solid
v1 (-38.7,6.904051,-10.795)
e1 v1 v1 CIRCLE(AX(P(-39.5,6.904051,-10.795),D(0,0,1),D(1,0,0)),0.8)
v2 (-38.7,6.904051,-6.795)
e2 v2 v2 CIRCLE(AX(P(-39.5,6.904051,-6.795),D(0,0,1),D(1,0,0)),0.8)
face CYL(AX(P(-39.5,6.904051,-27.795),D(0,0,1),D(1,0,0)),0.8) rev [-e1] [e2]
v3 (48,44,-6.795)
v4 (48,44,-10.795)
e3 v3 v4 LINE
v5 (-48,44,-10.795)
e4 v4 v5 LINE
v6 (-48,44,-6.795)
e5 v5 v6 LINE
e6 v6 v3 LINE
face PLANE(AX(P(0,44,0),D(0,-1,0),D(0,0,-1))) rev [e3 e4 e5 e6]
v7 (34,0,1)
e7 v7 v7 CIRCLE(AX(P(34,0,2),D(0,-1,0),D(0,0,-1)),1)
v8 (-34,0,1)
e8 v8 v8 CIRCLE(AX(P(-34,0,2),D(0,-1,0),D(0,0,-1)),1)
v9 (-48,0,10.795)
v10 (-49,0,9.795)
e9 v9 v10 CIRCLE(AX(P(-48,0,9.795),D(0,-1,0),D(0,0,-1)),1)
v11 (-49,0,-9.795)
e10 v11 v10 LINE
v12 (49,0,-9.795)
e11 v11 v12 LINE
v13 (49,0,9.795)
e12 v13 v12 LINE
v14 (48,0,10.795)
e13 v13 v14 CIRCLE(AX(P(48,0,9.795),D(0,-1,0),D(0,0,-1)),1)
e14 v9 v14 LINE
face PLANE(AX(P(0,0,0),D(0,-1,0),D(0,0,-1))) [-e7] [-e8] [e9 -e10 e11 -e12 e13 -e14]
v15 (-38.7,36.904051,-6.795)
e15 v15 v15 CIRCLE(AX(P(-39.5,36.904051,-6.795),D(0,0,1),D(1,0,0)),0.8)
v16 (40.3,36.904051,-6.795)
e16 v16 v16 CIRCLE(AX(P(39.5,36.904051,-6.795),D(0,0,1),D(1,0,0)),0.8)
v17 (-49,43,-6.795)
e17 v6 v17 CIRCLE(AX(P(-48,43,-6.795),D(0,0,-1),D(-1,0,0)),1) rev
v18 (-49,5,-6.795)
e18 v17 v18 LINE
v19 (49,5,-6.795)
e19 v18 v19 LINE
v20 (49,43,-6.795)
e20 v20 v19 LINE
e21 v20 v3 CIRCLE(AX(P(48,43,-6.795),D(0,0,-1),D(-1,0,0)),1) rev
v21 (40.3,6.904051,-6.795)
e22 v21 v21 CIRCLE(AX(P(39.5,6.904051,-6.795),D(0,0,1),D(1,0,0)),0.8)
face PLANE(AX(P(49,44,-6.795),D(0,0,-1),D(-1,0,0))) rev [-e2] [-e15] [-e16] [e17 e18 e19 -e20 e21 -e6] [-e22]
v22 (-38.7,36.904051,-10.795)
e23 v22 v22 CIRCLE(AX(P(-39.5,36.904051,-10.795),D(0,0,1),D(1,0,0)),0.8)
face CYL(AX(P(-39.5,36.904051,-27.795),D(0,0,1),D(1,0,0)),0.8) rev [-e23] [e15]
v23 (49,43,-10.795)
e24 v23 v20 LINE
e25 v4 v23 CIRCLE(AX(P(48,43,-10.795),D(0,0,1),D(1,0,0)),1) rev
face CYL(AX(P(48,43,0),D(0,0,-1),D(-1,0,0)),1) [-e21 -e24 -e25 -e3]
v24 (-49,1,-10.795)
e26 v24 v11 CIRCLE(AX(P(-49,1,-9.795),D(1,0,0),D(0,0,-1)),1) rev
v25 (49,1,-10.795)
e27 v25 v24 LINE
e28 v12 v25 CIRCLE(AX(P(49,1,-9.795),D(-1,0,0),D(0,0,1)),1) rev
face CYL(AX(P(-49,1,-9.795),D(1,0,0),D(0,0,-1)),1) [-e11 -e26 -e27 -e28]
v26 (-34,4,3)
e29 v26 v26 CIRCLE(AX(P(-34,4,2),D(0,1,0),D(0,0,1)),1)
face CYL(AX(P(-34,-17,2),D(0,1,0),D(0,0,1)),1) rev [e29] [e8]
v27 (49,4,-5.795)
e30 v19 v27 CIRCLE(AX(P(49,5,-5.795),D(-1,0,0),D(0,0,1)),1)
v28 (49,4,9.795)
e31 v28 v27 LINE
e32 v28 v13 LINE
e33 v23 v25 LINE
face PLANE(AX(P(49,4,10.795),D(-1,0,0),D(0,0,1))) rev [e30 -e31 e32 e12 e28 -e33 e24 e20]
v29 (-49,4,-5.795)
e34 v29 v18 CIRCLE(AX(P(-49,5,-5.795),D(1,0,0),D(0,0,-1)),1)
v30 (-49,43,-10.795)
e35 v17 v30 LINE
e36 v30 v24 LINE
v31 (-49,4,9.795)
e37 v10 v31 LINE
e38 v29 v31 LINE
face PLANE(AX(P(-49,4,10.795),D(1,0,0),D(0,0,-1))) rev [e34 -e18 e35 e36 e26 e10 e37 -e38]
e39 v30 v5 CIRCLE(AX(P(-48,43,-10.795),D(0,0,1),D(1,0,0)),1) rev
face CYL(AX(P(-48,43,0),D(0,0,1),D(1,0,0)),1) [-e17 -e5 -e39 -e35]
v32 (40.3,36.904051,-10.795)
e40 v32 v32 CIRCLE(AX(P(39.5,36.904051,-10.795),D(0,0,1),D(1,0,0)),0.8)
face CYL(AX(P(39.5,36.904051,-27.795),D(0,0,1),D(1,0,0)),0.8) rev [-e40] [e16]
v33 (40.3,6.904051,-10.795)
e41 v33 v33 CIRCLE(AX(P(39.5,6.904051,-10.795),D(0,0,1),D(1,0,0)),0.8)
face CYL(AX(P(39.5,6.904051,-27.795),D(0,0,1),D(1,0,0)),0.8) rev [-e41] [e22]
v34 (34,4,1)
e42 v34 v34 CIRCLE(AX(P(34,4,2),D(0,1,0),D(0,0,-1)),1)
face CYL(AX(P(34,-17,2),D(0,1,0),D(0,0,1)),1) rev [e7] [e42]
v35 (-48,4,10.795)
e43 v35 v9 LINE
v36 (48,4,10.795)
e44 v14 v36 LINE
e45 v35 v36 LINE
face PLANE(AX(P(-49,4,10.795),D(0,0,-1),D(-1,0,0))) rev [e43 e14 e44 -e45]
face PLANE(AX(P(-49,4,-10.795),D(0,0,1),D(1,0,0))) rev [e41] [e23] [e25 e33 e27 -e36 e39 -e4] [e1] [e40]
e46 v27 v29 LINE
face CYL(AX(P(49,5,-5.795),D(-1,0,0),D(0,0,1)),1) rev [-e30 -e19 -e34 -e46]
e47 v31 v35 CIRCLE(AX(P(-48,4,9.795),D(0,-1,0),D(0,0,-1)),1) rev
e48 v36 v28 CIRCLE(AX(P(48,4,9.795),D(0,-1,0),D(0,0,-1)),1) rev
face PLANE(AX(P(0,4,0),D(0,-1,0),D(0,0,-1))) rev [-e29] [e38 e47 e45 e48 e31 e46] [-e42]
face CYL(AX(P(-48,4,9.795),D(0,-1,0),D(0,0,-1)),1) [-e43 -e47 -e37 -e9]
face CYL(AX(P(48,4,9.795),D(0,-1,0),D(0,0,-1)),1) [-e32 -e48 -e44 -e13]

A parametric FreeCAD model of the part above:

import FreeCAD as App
import Part
import Sketcher
from FreeCAD import Vector
Q = App.Units.Quantity


def edges_at(feature, points):
    """Names of the edges that pass closest to the given points."""
    edges = feature.Shape.Edges
    near = lambda p: min(range(len(edges)), key=lambda i: edges[i].distToShape(Part.Vertex(*p))[0])
    return sorted({f"Edge{near(p) + 1}" for p in points})

doc = App.newDocument("Part")
body = doc.addObject("PartDesign::Body", "Body")

# Sketch on XZ plane
sketch1 = body.newObject("Sketcher::SketchObject", "Sketch")
sketch1.AttachmentSupport = (doc.getObject("XZ_Plane"), [""])
sketch1.MapMode = "FlatFace"
sketch1.addGeometry(Part.LineSegment(Vector(-49, -11, 0), Vector(-49, 11, 0)), False)
sketch1.addGeometry(Part.LineSegment(Vector(-49, 11, 0), Vector(49, 11, 0)), False)
sketch1.addGeometry(Part.LineSegment(Vector(49, 11, 0), Vector(49, -11, 0)), False)
sketch1.addGeometry(Part.LineSegment(Vector(49, -11, 0), Vector(-49, -11, 0)), False)
sketch1.addConstraint(Sketcher.Constraint("Coincident", 0, 2, 1, 1))
sketch1.addConstraint(Sketcher.Constraint("Coincident", 1, 2, 2, 1))
sketch1.addConstraint(Sketcher.Constraint("Coincident", 2, 2, 3, 1))
sketch1.addConstraint(Sketcher.Constraint("Coincident", 3, 2, 0, 1))
sketch1.addConstraint(Sketcher.Constraint("Vertical", 0))
sketch1.addConstraint(Sketcher.Constraint("Horizontal", 1))
sketch1.addConstraint(Sketcher.Constraint("Vertical", 2))
sketch1.addConstraint(Sketcher.Constraint("Horizontal", 3))
sketch1.addConstraint(Sketcher.Constraint("Symmetric", 0, 2, 2, 2, -1, 1))
sketch1.addConstraint(Sketcher.Constraint("DistanceX", 1, 1, 1, 2, Q("98 mm")))
sketch1.addConstraint(Sketcher.Constraint("DistanceY", 0, 1, 0, 2, Q("21.59 mm")))
pad1 = body.newObject("PartDesign::Pad", "Pad")
pad1.Profile = sketch1
pad1.Length = 4
pad1.Reversed = True

# Sketch on XZ plane
sketch2 = body.newObject("Sketcher::SketchObject", "Sketch001")
sketch2.AttachmentSupport = (doc.getObject("XZ_Plane"), [""])
sketch2.MapMode = "FlatFace"
sketch2.AttachmentOffset = App.Placement(Vector(0, 0, -4), App.Rotation())
sketch2.addGeometry(Part.LineSegment(Vector(-49, -10.8, 0), Vector(-49, -6.8, 0)), False)
sketch2.addGeometry(Part.LineSegment(Vector(-49, -6.8, 0), Vector(49, -6.8, 0)), False)
sketch2.addGeometry(Part.LineSegment(Vector(49, -6.8, 0), Vector(49, -10.8, 0)), False)
sketch2.addGeometry(Part.LineSegment(Vector(49, -10.8, 0), Vector(-49, -10.8, 0)), False)
sketch2.addConstraint(Sketcher.Constraint("Coincident", 0, 2, 1, 1))
sketch2.addConstraint(Sketcher.Constraint("Coincident", 1, 2, 2, 1))
sketch2.addConstraint(Sketcher.Constraint("Coincident", 2, 2, 3, 1))
sketch2.addConstraint(Sketcher.Constraint("Coincident", 3, 2, 0, 1))
sketch2.addConstraint(Sketcher.Constraint("Vertical", 0))
sketch2.addConstraint(Sketcher.Constraint("Horizontal", 1))
sketch2.addConstraint(Sketcher.Constraint("Vertical", 2))
sketch2.addConstraint(Sketcher.Constraint("Horizontal", 3))
sketch2.addConstraint(Sketcher.Constraint("DistanceX", 1, 1, 1, 2, Q("98 mm")))
sketch2.addConstraint(Sketcher.Constraint("DistanceY", 0, 1, 0, 2, Q("4 mm")))
sketch2.addConstraint(Sketcher.Constraint("DistanceX", 0, 2, -1, 1, Q("49 mm")))
sketch2.addConstraint(Sketcher.Constraint("DistanceY", 0, 2, -1, 1, Q("6.795 mm")))
pad2 = body.newObject("PartDesign::Pad", "Pad001")
pad2.Profile = sketch2
pad2.Length = 40
pad2.Reversed = True

# Sketch on XY plane
sketch3 = body.newObject("Sketcher::SketchObject", "Sketch002")
sketch3.AttachmentSupport = (doc.getObject("XY_Plane"), [""])
sketch3.MapMode = "FlatFace"
sketch3.AttachmentOffset = App.Placement(Vector(0, 0, -6.795), App.Rotation())
sketch3.addGeometry(Part.Circle(Vector(-39.5, 6.9, 0), Vector(0, 0, 1), 0.8), False)
sketch3.addGeometry(Part.Circle(Vector(-39.5, 36.9, 0), Vector(0, 0, 1), 0.8), False)
sketch3.addGeometry(Part.Circle(Vector(39.5, 36.9, 0), Vector(0, 0, 1), 0.8), False)
sketch3.addGeometry(Part.Circle(Vector(39.5, 6.9, 0), Vector(0, 0, 1), 0.8), False)
sketch3.addConstraint(Sketcher.Constraint("Equal", 0, 1))
sketch3.addConstraint(Sketcher.Constraint("Equal", 1, 2))
sketch3.addConstraint(Sketcher.Constraint("Equal", 2, 3))
sketch3.addConstraint(Sketcher.Constraint("Symmetric", 1, 3, 2, 3, -2))
sketch3.addConstraint(Sketcher.Constraint("Symmetric", 0, 3, 3, 3, -2))
sketch3.addConstraint(Sketcher.Constraint("Vertical", 0, 3, 1, 3))
sketch3.addConstraint(Sketcher.Constraint("Diameter", 0, Q("1.6 mm")))
sketch3.addConstraint(Sketcher.Constraint("DistanceY", 0, 3, 1, 3, Q("30 mm")))
sketch3.addConstraint(Sketcher.Constraint("DistanceX", 1, 3, 2, 3, Q("79 mm")))
sketch3.addConstraint(Sketcher.Constraint("DistanceY", -1, 1, 0, 3, Q("6.904051 mm")))
pocket1 = body.newObject("PartDesign::Pocket", "Pocket")
pocket1.Profile = sketch3
pocket1.Length = 21
doc.recompute()

fillet = body.newObject("PartDesign::Fillet", "Fillet")
fillet.Base = (pocket1, edges_at(pocket1, [
    (0, 4, -6.795),
    (49, 44, -8.795),
    (-49, 44, -8.795),
    (0, 0, -10.795),
    (49, 2, 10.795),
    (-49, 2, 10.795),
]))
fillet.Radius = 1

# Sketch on XZ plane
sketch4 = body.newObject("Sketcher::SketchObject", "Sketch003")
sketch4.AttachmentSupport = (doc.getObject("XZ_Plane"), [""])
sketch4.MapMode = "FlatFace"
sketch4.AttachmentOffset = App.Placement(Vector(0, 0, -4), App.Rotation())
sketch4.addGeometry(Part.Circle(Vector(-34, 2, 0), Vector(0, 0, 1), 1), False)
sketch4.addGeometry(Part.Circle(Vector(34, 2, 0), Vector(0, 0, 1), 1), False)
sketch4.addConstraint(Sketcher.Constraint("Equal", 0, 1))
sketch4.addConstraint(Sketcher.Constraint("Symmetric", 0, 3, 1, 3, -2))
sketch4.addConstraint(Sketcher.Constraint("Diameter", 0, Q("2 mm")))
sketch4.addConstraint(Sketcher.Constraint("DistanceX", 0, 3, -1, 1, Q("34 mm")))
sketch4.addConstraint(Sketcher.Constraint("DistanceY", -1, 1, 0, 3, Q("2 mm")))
pocket2 = body.newObject("PartDesign::Pocket", "Pocket001")
pocket2.Profile = sketch4
pocket2.Length = 21
pocket2.Reversed = True

doc.recompute()
